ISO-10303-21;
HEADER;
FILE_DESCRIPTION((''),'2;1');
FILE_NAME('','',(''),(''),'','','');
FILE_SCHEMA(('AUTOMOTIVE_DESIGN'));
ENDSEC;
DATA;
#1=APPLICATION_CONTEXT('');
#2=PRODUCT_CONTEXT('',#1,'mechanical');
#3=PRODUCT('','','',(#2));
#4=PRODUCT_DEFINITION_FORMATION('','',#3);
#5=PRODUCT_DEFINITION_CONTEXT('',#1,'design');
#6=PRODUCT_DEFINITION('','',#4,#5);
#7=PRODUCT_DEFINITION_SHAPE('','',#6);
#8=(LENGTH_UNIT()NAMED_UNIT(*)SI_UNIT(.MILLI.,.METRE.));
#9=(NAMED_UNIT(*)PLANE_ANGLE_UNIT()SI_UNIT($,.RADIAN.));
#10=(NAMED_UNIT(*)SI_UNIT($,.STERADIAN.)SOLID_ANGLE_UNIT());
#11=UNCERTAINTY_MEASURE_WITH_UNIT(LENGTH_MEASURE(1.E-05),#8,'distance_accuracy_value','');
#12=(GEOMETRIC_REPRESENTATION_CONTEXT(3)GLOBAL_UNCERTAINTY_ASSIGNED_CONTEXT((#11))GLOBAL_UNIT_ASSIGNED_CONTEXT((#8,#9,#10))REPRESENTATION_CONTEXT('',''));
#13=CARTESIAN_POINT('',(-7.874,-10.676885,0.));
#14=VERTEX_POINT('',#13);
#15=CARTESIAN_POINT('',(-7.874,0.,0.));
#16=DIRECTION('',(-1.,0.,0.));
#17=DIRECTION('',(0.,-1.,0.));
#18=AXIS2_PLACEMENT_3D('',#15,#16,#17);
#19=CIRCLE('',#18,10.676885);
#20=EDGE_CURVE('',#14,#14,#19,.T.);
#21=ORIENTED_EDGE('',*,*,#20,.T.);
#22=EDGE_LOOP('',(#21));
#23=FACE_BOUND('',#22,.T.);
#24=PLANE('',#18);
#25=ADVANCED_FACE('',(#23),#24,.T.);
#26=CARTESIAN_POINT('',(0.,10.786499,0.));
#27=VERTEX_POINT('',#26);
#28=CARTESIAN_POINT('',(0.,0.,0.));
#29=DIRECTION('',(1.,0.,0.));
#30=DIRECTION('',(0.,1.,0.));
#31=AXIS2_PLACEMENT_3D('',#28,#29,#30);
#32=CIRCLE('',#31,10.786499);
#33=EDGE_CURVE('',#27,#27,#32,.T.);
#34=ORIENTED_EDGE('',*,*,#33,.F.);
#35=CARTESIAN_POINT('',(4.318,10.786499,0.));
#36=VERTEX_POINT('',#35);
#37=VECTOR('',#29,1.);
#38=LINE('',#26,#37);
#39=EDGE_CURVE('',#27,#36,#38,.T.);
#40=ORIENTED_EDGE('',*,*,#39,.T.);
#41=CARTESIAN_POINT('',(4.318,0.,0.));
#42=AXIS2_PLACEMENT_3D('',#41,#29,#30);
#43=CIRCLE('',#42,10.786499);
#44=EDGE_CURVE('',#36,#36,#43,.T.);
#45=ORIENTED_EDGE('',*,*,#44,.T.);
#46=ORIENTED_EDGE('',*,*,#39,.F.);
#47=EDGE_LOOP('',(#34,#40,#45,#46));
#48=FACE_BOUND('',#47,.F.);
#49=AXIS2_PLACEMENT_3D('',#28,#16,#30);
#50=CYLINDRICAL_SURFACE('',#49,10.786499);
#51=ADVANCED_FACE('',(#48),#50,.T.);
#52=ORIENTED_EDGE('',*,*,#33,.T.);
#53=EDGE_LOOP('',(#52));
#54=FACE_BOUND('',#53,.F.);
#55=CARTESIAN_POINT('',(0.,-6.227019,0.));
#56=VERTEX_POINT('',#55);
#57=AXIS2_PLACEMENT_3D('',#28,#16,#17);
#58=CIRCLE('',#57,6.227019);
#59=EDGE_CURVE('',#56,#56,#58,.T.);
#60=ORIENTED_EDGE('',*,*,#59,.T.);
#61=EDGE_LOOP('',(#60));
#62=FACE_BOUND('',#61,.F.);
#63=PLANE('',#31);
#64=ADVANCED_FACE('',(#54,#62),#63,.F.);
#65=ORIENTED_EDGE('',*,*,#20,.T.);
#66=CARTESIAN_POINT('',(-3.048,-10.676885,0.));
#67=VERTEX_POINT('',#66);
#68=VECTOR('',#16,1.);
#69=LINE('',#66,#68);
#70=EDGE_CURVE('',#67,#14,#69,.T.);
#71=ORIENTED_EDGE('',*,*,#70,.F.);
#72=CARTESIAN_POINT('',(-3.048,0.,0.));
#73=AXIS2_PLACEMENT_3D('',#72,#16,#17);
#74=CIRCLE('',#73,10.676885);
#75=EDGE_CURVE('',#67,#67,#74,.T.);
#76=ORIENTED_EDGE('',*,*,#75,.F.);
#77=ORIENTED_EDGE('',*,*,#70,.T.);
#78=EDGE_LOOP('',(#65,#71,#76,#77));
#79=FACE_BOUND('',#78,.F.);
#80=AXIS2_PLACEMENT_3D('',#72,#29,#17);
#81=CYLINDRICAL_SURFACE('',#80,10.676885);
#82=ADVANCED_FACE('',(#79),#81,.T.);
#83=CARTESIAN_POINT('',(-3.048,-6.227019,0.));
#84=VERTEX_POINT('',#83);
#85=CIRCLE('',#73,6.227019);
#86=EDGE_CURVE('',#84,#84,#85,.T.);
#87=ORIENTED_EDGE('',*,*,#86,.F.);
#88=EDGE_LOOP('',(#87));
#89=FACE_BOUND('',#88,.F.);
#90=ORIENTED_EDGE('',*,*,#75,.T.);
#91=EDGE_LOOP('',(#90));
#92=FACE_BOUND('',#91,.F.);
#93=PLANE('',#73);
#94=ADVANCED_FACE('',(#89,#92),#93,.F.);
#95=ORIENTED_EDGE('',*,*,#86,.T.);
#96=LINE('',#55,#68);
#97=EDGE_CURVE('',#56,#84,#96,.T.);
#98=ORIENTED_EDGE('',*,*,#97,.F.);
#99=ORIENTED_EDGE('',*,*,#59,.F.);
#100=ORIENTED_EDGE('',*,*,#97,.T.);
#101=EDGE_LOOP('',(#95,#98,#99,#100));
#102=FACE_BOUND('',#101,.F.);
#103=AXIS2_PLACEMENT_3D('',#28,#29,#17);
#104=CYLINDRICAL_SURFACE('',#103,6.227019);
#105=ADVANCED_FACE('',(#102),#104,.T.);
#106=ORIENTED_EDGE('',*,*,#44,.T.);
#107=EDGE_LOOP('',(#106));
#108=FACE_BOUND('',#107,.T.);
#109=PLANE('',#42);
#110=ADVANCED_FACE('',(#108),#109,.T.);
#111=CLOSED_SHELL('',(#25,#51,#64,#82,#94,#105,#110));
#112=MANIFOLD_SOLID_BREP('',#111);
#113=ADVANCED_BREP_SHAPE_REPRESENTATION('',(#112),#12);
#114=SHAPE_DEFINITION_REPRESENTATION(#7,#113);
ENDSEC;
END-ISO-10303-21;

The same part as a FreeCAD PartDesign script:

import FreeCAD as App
import Part
import Sketcher
Q = App.Units.Quantity

doc = App.newDocument("Part")
body = doc.addObject("PartDesign::Body", "Body")

sketch1 = doc.addObject("Sketcher::SketchObject", "Sketch")
body.addObject(sketch1)
sketch1.AttachmentSupport = (doc.YZ_Plane, [""])
sketch1.MapMode = "FlatFace"
sketch1.addGeometry(Part.Circle(App.Vector(0, 0, 0), App.Vector(0, 0, 1), 10.786499), False)
sketch1.addConstraint(Sketcher.Constraint("Coincident", 0, 3, -1, 1))
sketch1.addConstraint(Sketcher.Constraint("Diameter", 0, Q("21.572997 mm")))
pad1 = doc.addObject("PartDesign::Pad", "Pad")
body.addObject(pad1)
pad1.Profile = sketch1
pad1.Length = Q("0.17 in")

sketch2 = doc.addObject("Sketcher::SketchObject", "Sketch001")
body.addObject(sketch2)
sketch2.AttachmentSupport = (doc.YZ_Plane, [""])
sketch2.MapMode = "FlatFace"
sketch2.addGeometry(Part.Circle(App.Vector(0, 0, 0), App.Vector(0, 0, 1), 6.227019), False)
sketch2.addConstraint(Sketcher.Constraint("Coincident", 0, 3, -1, 1))
sketch2.addConstraint(Sketcher.Constraint("Diameter", 0, Q("12.454038 mm")))
pad2 = doc.addObject("PartDesign::Pad", "Pad001")
body.addObject(pad2)
pad2.Profile = sketch2
pad2.Length = Q("0.12 in")
pad2.Reversed = True

sketch3 = doc.addObject("Sketcher::SketchObject", "Sketch002")
body.addObject(sketch3)
sketch3.AttachmentSupport = (doc.YZ_Plane, [""])
sketch3.MapMode = "FlatFace"
sketch3.AttachmentOffset = App.Placement(App.Vector(0, 0, -0.12 * 25.4), App.Rotation())
sketch3.addGeometry(Part.Circle(App.Vector(0, 0, 0), App.Vector(0, 0, 1), 10.676885), False)
sketch3.addConstraint(Sketcher.Constraint("Coincident", 0, 3, -1, 1))
sketch3.addConstraint(Sketcher.Constraint("Diameter", 0, Q("21.353771 mm")))
pad3 = doc.addObject("PartDesign::Pad", "Pad002")
body.addObject(pad3)
pad3.Profile = sketch3
pad3.Length = Q("0.19 in")
pad3.Reversed = True

doc.recompute()
